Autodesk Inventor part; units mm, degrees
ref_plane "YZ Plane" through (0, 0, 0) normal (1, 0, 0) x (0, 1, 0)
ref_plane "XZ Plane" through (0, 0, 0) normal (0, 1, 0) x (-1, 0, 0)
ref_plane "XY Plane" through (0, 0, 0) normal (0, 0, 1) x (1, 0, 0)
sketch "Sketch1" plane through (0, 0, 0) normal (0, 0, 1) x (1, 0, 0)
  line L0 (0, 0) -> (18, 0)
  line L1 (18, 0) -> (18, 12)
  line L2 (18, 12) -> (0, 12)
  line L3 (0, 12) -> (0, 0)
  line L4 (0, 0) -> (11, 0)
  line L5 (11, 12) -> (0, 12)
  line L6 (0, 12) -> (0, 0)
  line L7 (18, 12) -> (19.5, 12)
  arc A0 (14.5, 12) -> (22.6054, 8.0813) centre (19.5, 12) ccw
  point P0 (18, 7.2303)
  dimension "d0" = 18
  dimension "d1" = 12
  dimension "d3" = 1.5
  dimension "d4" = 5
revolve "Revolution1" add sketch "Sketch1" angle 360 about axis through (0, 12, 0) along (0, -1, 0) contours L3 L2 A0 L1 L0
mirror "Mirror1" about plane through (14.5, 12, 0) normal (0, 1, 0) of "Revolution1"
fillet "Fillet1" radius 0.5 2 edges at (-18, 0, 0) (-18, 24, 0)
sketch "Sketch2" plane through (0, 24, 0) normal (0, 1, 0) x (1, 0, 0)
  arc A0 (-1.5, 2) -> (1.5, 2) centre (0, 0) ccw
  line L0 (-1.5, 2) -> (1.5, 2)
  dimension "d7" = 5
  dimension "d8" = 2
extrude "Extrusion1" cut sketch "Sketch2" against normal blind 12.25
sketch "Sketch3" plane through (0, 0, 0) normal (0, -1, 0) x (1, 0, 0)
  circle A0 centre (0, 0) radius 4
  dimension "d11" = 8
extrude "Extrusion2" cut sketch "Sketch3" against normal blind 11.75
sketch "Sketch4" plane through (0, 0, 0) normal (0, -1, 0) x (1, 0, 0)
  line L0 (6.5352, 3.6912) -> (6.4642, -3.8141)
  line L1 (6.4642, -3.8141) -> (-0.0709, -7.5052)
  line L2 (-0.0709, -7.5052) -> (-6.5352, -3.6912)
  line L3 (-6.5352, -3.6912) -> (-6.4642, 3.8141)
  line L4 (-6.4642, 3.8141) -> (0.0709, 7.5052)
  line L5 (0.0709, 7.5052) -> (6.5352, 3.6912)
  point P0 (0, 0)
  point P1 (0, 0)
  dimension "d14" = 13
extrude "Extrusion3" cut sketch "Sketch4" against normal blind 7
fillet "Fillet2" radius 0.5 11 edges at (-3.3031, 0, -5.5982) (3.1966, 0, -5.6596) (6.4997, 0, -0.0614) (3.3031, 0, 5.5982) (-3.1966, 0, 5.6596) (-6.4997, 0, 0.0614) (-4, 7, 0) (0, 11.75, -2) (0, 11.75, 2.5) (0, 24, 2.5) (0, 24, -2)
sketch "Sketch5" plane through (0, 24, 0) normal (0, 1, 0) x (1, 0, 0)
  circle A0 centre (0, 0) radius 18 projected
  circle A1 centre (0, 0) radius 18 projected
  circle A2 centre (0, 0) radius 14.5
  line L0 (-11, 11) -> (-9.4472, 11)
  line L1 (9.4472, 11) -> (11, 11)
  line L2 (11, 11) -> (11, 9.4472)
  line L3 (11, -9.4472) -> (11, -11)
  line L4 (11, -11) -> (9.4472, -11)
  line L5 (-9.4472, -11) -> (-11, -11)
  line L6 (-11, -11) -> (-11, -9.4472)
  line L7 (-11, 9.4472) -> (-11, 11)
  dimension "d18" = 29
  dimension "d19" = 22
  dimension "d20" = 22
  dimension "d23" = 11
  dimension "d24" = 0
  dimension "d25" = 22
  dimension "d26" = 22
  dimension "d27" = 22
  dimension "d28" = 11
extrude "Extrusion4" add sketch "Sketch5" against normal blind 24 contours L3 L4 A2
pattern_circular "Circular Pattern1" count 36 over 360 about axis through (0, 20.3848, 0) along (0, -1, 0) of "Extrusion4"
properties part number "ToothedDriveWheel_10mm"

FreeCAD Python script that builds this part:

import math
import FreeCAD as App
import Part
import Sketcher
from FreeCAD import Vector
Q = App.Units.Quantity


def edges_at(feature, points):
    """Names of the edges that pass closest to the given points."""
    edges = feature.Shape.Edges
    near = lambda p: min(range(len(edges)), key=lambda i: edges[i].distToShape(Part.Vertex(*p))[0])
    return sorted({f"Edge{near(p) + 1}" for p in points})


def add_polygon(sketch, points):
    """Adds a closed chain of lines whose ends are joined by coincident constraints."""
    first, n = sketch.GeometryCount, len(points)
    for a, b in zip(points, points[1:] + points[:1]):
        sketch.addGeometry(Part.LineSegment(App.Vector(*a, 0), App.Vector(*b, 0)), False)
    for i in range(n):
        sketch.addConstraint(Sketcher.Constraint("Coincident", first + i, 2, first + (i + 1) % n, 1))

doc = App.newDocument("Part")
body = doc.addObject("PartDesign::Body", "Body")

# Sketch on XY plane
sketch1 = doc.addObject("Sketcher::SketchObject", "Sketch")
body.addObject(sketch1)
sketch1.AttachmentSupport = (doc.XY_Plane, [""])
sketch1.MapMode = "FlatFace"
sketch1.addGeometry([
    Part.LineSegment(Vector(0, 12, 0), Vector(0, 0, 0)),  # 0
    Part.LineSegment(Vector(0, 0, 0), Vector(18, 0, 0)),  # 1
    Part.LineSegment(Vector(18, 0, 0), Vector(18, 7, 0)),  # 2
    Part.ArcOfCircle(Part.Circle(Vector(20, 12, 0), Vector(0, 0, 1), 5), math.radians(180), math.radians(253)),  # 3
    Part.LineSegment(Vector(14, 12, 0), Vector(0, 12, 0)),  # 4
], False)
sketch1.addConstraint([
    Sketcher.Constraint("Coincident", 0, 2, 1, 1),
    Sketcher.Constraint("Coincident", 1, 2, 2, 1),
    Sketcher.Constraint("Coincident", 2, 2, 3, 2),
    Sketcher.Constraint("Coincident", 3, 1, 4, 1),
    Sketcher.Constraint("Coincident", 4, 2, 0, 1),
    Sketcher.Constraint("Vertical", 0),
    Sketcher.Constraint("Horizontal", 1),
    Sketcher.Constraint("Vertical", 2),
    Sketcher.Constraint("Horizontal", 4),
    Sketcher.Constraint("Coincident", 0, 2, -1, 1),
    Sketcher.Constraint("Radius", 3, Q("5 mm")),
    Sketcher.Constraint("DistanceX", 1, 1, 1, 2, Q("18 mm")),
    Sketcher.Constraint("DistanceY", 0, 2, 0, 1, Q("12 mm")),
    Sketcher.Constraint("DistanceY", -1, 1, 3, 3, Q("12 mm")),
    Sketcher.Constraint("DistanceX", 1, 2, 3, 3, Q("1.5 mm")),
])
revolution = doc.addObject("PartDesign::Revolution", "Revolution")
body.addObject(revolution)
revolution.Profile = sketch1
revolution.ReferenceAxis = (sketch1, ["V_Axis"])
revolution.Angle = 360
doc.recompute()

datumplane = doc.addObject("PartDesign::Plane", "DatumPlane")
body.addObject(datumplane)
datumplane.AttachmentSupport = (doc.XZ_Plane, [""])
datumplane.MapMode = "FlatFace"
datumplane.AttachmentOffset = App.Placement(Vector(0, 0, -12), App.Rotation())
mirrored = doc.addObject("PartDesign::Mirrored", "Mirrored")
body.addObject(mirrored)
mirrored.Originals = [revolution]
mirrored.MirrorPlane = (datumplane, [""])
body.Tip = mirrored
doc.recompute()

fillet = doc.addObject("PartDesign::Fillet", "Fillet")
body.addObject(fillet)
fillet.Base = (mirrored, edges_at(mirrored, [(-18, 0, 0), (-18, 24, 0)]))
fillet.Radius = 0.5

# Sketch on XZ plane
sketch2 = doc.addObject("Sketcher::SketchObject", "Sketch001")
body.addObject(sketch2)
sketch2.AttachmentSupport = (doc.XZ_Plane, [""])
sketch2.MapMode = "FlatFace"
sketch2.AttachmentOffset = App.Placement(Vector(0, 0, -24), App.Rotation())
sketch2.addGeometry([
    Part.LineSegment(Vector(1.5, -2, 0), Vector(-1.5, -2, 0)),
    Part.ArcOfCircle(Part.Circle(Vector(0, 0, 0), Vector(0, 0, 1), 2.5), math.radians(-53), math.radians(233)),
], False)
sketch2.addConstraint([
    Sketcher.Constraint("Coincident", 0, 1, 1, 1),
    Sketcher.Constraint("Coincident", 1, 2, 0, 2),
    Sketcher.Constraint("Horizontal", 0),
    Sketcher.Constraint("Coincident", 1, 3, -1, 1),
    Sketcher.Constraint("Radius", 1, Q("2.5 mm")),
    Sketcher.Constraint("DistanceY", 0, 1, -1, 1, Q("2 mm")),
])
pocket1 = doc.addObject("PartDesign::Pocket", "Pocket")
body.addObject(pocket1)
pocket1.Profile = sketch2
pocket1.Length = 12.25
pocket1.Reversed = True

# Sketch on XZ plane
sketch3 = doc.addObject("Sketcher::SketchObject", "Sketch002")
body.addObject(sketch3)
sketch3.AttachmentSupport = (doc.XZ_Plane, [""])
sketch3.MapMode = "FlatFace"
sketch3.addGeometry(Part.Circle(Vector(0, 0, 0), Vector(0, 0, 1), 4), False)
sketch3.addConstraint([
    Sketcher.Constraint("Coincident", 0, 3, -1, 1),
    Sketcher.Constraint("Diameter", 0, Q("8 mm")),
])
pocket2 = doc.addObject("PartDesign::Pocket", "Pocket001")
body.addObject(pocket2)
pocket2.Profile = sketch3
pocket2.Length = 11.75

# Sketch on XZ plane
sketch4 = doc.addObject("Sketcher::SketchObject", "Sketch003")
body.addObject(sketch4)
sketch4.AttachmentSupport = (doc.XZ_Plane, [""])
sketch4.MapMode = "FlatFace"
add_polygon(sketch4, [(6, -4), (7, 4), (0, 8), (-6, 4), (-7, -4), (0, -8)])  # lines 0-5
sketch4.addConstraint([
    Sketcher.Constraint("Symmetric", 0, 2, 3, 2, -1, 1),
    Sketcher.Constraint("Symmetric", 1, 2, 4, 2, -1, 1),
    Sketcher.Constraint("Symmetric", 2, 2, 5, 2, -1, 1),
    Sketcher.Constraint("Equal", 0, 1),
    Sketcher.Constraint("Equal", 1, 2),
    Sketcher.Constraint("Angle", 1, Q("149.459 deg")),
    Sketcher.Constraint("DistanceX", -1, 1, 1, 2, Q("0.071 mm")),
    Sketcher.Constraint("DistanceY", -1, 1, 2, 2, Q("3.814 mm")),
    Sketcher.Constraint("DistanceY", 0, 2, 1, 2, Q("3.814 mm")),
])
pocket3 = doc.addObject("PartDesign::Pocket", "Pocket002")
body.addObject(pocket3)
pocket3.Profile = sketch4
pocket3.Length = 7
doc.recompute()

fillet2 = doc.addObject("PartDesign::Fillet", "Fillet001")
body.addObject(fillet2)
fillet2.Base = (pocket3, edges_at(pocket3, [
    (-3.303, 0, -5.598),
    (3.197, 0, -5.66),
    (6.5, 0, -0.061),
    (3.303, 0, 5.598),
    (-3.197, 0, 5.66),
    (-6.5, 0, 0.061),
    (-4, 7, 0),
    (0, 11.75, -2),
    (0, 11.75, 2.5),
    (0, 24, 2.5),
    (0, 24, -2),
]))
fillet2.Radius = 0.5

# Sketch on XZ plane
sketch5 = doc.addObject("Sketcher::SketchObject", "Sketch004")
body.addObject(sketch5)
sketch5.AttachmentSupport = (doc.XZ_Plane, [""])
sketch5.MapMode = "FlatFace"
sketch5.AttachmentOffset = App.Placement(Vector(0, 0, -24), App.Rotation())
sketch5.addGeometry([
    Part.LineSegment(Vector(11, 11, 0), Vector(11, 9.4, 0)),
    Part.ArcOfCircle(Part.Circle(Vector(0, 0, 0), Vector(0, 0, 1), 14.5), math.radians(40.66), math.radians(49.34)),
    Part.LineSegment(Vector(9.4, 11, 0), Vector(11, 11, 0)),
], False)
sketch5.addConstraint([
    Sketcher.Constraint("Coincident", 0, 2, 1, 1),
    Sketcher.Constraint("Coincident", 1, 2, 2, 1),
    Sketcher.Constraint("Coincident", 2, 2, 0, 1),
    Sketcher.Constraint("Vertical", 0),
    Sketcher.Constraint("Horizontal", 2),
    Sketcher.Constraint("Coincident", 1, 3, -1, 1),
    Sketcher.Constraint("Equal", 2, 0),
    Sketcher.Constraint("Radius", 1, Q("14.5 mm")),
    Sketcher.Constraint("DistanceX", -1, 1, 0, 2, Q("11 mm")),
])
pad1 = doc.addObject("PartDesign::Pad", "Pad")
body.addObject(pad1)
pad1.Profile = sketch5
pad1.Length = 24
doc.recompute()

polarpattern = doc.addObject("PartDesign::PolarPattern", "PolarPattern")
body.addObject(polarpattern)
polarpattern.Originals = [pad1]
polarpattern.Axis = (doc.Y_Axis, [""])
polarpattern.Angle = 360
polarpattern.Occurrences = 36
body.Tip = polarpattern

doc.recompute()
